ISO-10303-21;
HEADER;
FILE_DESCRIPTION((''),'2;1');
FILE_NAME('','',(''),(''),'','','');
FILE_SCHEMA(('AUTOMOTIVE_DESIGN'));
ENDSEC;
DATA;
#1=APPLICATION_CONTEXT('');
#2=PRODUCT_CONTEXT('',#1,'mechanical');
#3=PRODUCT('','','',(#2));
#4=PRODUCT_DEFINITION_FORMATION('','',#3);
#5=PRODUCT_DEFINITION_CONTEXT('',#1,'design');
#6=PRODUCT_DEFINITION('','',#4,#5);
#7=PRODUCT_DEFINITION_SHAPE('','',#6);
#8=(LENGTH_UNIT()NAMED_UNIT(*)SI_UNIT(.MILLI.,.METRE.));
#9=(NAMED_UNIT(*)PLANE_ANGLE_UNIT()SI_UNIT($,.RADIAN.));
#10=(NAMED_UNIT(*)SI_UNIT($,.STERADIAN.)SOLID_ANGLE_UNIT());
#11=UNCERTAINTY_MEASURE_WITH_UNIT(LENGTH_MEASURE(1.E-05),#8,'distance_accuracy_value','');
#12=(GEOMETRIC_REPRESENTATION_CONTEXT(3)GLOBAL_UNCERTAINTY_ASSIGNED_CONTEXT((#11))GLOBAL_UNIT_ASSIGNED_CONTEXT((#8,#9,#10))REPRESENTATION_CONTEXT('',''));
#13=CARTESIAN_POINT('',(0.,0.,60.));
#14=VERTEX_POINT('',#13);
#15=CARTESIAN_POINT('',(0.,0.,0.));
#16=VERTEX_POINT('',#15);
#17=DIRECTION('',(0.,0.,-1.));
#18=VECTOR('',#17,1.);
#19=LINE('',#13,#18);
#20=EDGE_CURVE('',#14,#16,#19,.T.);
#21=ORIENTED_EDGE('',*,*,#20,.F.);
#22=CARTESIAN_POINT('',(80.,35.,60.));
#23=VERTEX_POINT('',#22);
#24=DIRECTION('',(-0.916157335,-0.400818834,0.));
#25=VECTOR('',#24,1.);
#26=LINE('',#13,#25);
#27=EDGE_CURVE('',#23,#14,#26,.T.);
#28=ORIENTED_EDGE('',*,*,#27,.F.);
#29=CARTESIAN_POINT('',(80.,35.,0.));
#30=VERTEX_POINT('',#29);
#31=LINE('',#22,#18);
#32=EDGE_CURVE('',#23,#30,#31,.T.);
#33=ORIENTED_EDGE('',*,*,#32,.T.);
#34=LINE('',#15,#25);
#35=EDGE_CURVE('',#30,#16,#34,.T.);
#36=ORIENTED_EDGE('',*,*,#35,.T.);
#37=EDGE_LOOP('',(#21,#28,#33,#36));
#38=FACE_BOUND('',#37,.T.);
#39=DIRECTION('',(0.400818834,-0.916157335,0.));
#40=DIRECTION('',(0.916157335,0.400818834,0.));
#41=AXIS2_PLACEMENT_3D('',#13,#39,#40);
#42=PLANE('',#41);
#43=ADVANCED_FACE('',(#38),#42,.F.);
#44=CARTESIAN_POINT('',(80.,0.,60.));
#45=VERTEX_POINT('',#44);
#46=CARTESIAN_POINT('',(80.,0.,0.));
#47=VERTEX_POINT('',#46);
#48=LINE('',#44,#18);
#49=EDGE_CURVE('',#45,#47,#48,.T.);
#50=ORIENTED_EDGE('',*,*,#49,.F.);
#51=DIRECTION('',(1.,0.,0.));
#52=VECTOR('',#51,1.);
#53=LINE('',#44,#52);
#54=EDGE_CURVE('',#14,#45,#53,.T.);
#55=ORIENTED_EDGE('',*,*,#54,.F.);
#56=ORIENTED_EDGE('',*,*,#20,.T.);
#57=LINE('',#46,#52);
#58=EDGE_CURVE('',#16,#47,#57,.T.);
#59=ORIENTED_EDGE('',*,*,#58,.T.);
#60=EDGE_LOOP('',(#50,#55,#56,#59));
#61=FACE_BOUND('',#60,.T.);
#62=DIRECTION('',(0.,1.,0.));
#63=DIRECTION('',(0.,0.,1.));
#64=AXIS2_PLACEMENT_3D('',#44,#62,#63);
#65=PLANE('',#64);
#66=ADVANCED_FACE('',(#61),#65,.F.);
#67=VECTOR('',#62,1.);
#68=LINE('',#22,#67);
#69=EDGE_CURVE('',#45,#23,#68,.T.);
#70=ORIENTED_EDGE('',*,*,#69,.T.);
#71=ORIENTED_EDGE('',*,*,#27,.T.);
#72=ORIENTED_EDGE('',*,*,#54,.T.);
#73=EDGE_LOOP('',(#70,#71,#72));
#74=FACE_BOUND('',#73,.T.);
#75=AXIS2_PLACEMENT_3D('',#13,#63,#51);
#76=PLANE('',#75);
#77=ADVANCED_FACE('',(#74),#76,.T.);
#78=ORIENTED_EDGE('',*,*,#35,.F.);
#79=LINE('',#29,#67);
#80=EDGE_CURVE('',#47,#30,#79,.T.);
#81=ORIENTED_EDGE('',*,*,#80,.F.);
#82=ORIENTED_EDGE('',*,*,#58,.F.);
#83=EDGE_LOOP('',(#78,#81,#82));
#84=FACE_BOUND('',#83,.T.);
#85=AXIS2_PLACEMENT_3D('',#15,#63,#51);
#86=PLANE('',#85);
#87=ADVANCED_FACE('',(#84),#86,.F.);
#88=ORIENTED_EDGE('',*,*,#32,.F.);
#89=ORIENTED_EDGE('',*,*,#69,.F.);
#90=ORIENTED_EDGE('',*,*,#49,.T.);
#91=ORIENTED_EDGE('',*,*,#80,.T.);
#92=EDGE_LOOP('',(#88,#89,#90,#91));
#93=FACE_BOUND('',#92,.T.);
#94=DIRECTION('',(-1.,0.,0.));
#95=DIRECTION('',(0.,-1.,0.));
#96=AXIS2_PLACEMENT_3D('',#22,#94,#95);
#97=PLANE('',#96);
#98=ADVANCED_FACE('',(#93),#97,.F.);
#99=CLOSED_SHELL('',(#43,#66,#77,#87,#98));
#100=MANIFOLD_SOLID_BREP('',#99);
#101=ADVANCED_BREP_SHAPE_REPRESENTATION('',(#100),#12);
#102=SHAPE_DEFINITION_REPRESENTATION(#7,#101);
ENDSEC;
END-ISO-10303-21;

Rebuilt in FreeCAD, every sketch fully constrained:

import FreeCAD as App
import Part
import Sketcher
from FreeCAD import Vector
Q = App.Units.Quantity


def add_polygon(sketch, points):
    """Adds a closed chain of lines whose ends are joined by coincident constraints."""
    first, n = sketch.GeometryCount, len(points)
    for a, b in zip(points, points[1:] + points[:1]):
        sketch.addGeometry(Part.LineSegment(App.Vector(*a, 0), App.Vector(*b, 0)), False)
    for i in range(n):
        sketch.addConstraint(Sketcher.Constraint("Coincident", first + i, 2, first + (i + 1) % n, 1))

doc = App.newDocument("Part")
params = doc.addObject("Spreadsheet::Sheet", "Params")
for row, (alias, value) in enumerate([
    ("sketch1_width", "80 mm"),
    ("sketch1_height", "35 mm"),
    ("pad1_length", "60 mm"),
], start=1):
    params.set(f"A{row}", alias)
    params.set(f"B{row}", "=" + value)
    params.setAlias(f"B{row}", alias)

body = doc.addObject("PartDesign::Body", "Body")

sketch1 = doc.addObject("Sketcher::SketchObject", "Sketch")
body.addObject(sketch1)
sketch1.AttachmentSupport = (doc.XY_Plane, [""])
sketch1.MapMode = "FlatFace"
add_polygon(sketch1, [(80, 35), (0, 0), (80, 0)])
sketch1.addConstraint(Sketcher.Constraint("Horizontal", 1))
sketch1.addConstraint(Sketcher.Constraint("Vertical", 2))
sketch1.addConstraint(Sketcher.Constraint("Coincident", 0, 2, -1, 1))
sketch1.addConstraint(Sketcher.Constraint("DistanceX", 1, 1, 1, 2, Q("80 mm")))
sketch1.addConstraint(Sketcher.Constraint("DistanceY", 2, 1, 2, 2, Q("35 mm")))
sketch1.setExpression("Constraints[6]", "Params.sketch1_width")
sketch1.setExpression("Constraints[7]", "Params.sketch1_height")
pad1 = doc.addObject("PartDesign::Pad", "Pad")
body.addObject(pad1)
pad1.Profile = sketch1
pad1.setExpression("Length", "Params.pad1_length")

doc.recompute()
